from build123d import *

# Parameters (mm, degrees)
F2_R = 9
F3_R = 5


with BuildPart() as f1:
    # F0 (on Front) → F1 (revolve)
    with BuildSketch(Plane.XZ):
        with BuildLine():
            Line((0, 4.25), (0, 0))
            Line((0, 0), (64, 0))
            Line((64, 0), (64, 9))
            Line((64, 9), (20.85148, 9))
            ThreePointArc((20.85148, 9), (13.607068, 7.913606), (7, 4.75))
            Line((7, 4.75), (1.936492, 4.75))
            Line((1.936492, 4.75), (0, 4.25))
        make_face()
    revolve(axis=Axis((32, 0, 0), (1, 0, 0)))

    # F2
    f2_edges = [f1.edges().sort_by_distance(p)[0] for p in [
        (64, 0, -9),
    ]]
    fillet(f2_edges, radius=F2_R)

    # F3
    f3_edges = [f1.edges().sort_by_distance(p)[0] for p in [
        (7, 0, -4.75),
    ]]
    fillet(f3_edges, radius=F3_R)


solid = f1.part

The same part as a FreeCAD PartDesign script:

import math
import FreeCAD as App
import Part
import Sketcher
from FreeCAD import Vector


def edges_at(feature, points):
    """Names of the edges that pass closest to the given points."""
    edges = feature.Shape.Edges
    near = lambda p: min(range(len(edges)), key=lambda i: edges[i].distToShape(Part.Vertex(*p))[0])
    return sorted({f"Edge{near(p) + 1}" for p in points})

doc = App.newDocument("Part")
body = doc.addObject("PartDesign::Body", "Body")

# Sketch on XZ plane
sketch1 = body.newObject("Sketcher::SketchObject", "Sketch")
sketch1.AttachmentSupport = (doc.getObject("XZ_Plane"), [""])
sketch1.MapMode = "FlatFace"
sketch1.addGeometry([
    Part.LineSegment(Vector(0, 4.2, 0), Vector(0, 0, 0)),  # 0
    Part.LineSegment(Vector(0, 0, 0), Vector(64, 0, 0)),  # 1
    Part.LineSegment(Vector(64, 0, 0), Vector(64, 9, 0)),  # 2
    Part.LineSegment(Vector(64, 9, 0), Vector(20.9, 9, 0)),  # 3
    Part.ArcOfCircle(Part.Circle(Vector(20.9, -15.7, 0), Vector(0, 0, 1), 24.7), math.radians(90), math.radians(124)),  # 4
    Part.LineSegment(Vector(7, 4.8, 0), Vector(1.9, 4.8, 0)),  # 5
    Part.LineSegment(Vector(1.9, 4.8, 0), Vector(0, 4.2, 0)),  # 6
], False)
sketch1.addConstraint([
    Sketcher.Constraint("Coincident", 0, 2, 1, 1),
    Sketcher.Constraint("Coincident", 1, 2, 2, 1),
    Sketcher.Constraint("Coincident", 2, 2, 3, 1),
    Sketcher.Constraint("Tangent", 3, 2, 4, 1),
    Sketcher.Constraint("Coincident", 4, 2, 5, 1),
    Sketcher.Constraint("Coincident", 5, 2, 6, 1),
    Sketcher.Constraint("Coincident", 6, 2, 0, 1),
    Sketcher.Constraint("Vertical", 0),
    Sketcher.Constraint("Horizontal", 1),
    Sketcher.Constraint("Vertical", 2),
    Sketcher.Constraint("Horizontal", 3),
    Sketcher.Constraint("Horizontal", 5),
    Sketcher.Constraint("Coincident", 0, 2, -1, 1),
    Sketcher.Constraint("DistanceX", 1, 1, 1, 2, 64.0),
    Sketcher.Constraint("DistanceY", 2, 1, 2, 2, 9.0),
    Sketcher.Constraint("Distance", 6, 2.0),
    Sketcher.Constraint("DistanceX", -1, 1, 4, 2, 7.0),
    Sketcher.Constraint("DistanceY", 0, 2, 0, 1, 4.25),
    Sketcher.Constraint("DistanceY", 6, 2, 5, 2, 0.5),
    Sketcher.Constraint("Radius", 4, 24.697164),
])
revolution = body.newObject("PartDesign::Revolution", "Revolution")
revolution.Profile = sketch1
revolution.ReferenceAxis = (sketch1, ["H_Axis"])
revolution.Angle = 360
doc.recompute()

fillet = body.newObject("PartDesign::Fillet", "Fillet")
fillet.Base = (revolution, edges_at(revolution, [(64, 0, -9)]))
fillet.Radius = 9
doc.recompute()

fillet2 = body.newObject("PartDesign::Fillet", "Fillet001")
fillet2.Base = (fillet, edges_at(fillet, [(7, 0, -4.75)]))
fillet2.Radius = 5

doc.recompute()
